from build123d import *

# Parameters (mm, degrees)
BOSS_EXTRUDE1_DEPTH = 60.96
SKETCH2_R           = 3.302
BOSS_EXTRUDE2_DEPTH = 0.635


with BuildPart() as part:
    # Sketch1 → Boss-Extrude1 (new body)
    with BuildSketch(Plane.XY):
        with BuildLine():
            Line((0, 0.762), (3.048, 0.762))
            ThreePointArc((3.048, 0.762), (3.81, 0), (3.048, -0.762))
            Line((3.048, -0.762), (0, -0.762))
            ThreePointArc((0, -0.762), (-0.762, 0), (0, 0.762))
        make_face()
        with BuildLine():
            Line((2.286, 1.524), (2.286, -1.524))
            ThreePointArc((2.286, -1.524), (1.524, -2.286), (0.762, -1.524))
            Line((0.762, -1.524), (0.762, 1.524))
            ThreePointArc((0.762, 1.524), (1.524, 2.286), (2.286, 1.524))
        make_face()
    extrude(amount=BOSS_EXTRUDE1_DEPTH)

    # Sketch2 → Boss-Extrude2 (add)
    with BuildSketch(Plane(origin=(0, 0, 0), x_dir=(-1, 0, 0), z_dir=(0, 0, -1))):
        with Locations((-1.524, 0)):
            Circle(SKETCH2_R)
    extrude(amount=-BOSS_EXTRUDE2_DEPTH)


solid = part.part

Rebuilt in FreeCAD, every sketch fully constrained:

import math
import FreeCAD as App
import Part
import Sketcher
from FreeCAD import Vector
Q = App.Units.Quantity

doc = App.newDocument("Part")
params = doc.addObject("Spreadsheet::Sheet", "Params")
for row, (alias, value) in enumerate([
    ("sketch1_radius", "0.03 in"),
    ("sketch1_width", "0.03 in"),
    ("pad1_length", "2.4 in"),
    ("sketch2_diameter", "0.26 in"),
    ("pad2_length", "0.025 in"),
], start=1):
    params.set(f"A{row}", alias)
    params.set(f"B{row}", "=" + value)
    params.setAlias(f"B{row}", alias)

body = doc.addObject("PartDesign::Body", "Body")

sketch1 = body.newObject("Sketcher::SketchObject", "Sketch")
sketch1.AttachmentSupport = (doc.getObject("XY_Plane"), [""])
sketch1.MapMode = "FlatFace"
sketch1.addGeometry([
    Part.ArcOfCircle(Part.Circle(Vector(0, 0, 0), Vector(0, 0, 1), 0.8), math.radians(90), math.radians(270)),
    Part.LineSegment(Vector(0, -0.8, 0), Vector(0.8, -0.8, 0)),
    Part.LineSegment(Vector(0.8, -0.8, 0), Vector(0.8, -1.5, 0)),
    Part.ArcOfCircle(Part.Circle(Vector(1.5, -1.5, 0), Vector(0, 0, 1), 0.8), math.radians(180), math.radians(360)),
    Part.LineSegment(Vector(2.3, -1.5, 0), Vector(2.3, -0.8, 0)),
    Part.LineSegment(Vector(2.3, -0.8, 0), Vector(3, -0.8, 0)),
    Part.ArcOfCircle(Part.Circle(Vector(3, 0, 0), Vector(0, 0, 1), 0.8), math.radians(-90), math.radians(90)),
    Part.LineSegment(Vector(3, 0.8, 0), Vector(2.3, 0.8, 0)),
    Part.LineSegment(Vector(2.3, 0.8, 0), Vector(2.3, 1.5, 0)),
    Part.ArcOfCircle(Part.Circle(Vector(1.5, 1.5, 0), Vector(0, 0, 1), 0.8), math.radians(0), math.radians(180)),
    Part.LineSegment(Vector(0.8, 1.5, 0), Vector(0.8, 0.8, 0)),
    Part.LineSegment(Vector(0.8, 0.8, 0), Vector(0, 0.8, 0)),
], False)
sketch1.addConstraint([
    Sketcher.Constraint("Tangent", 0, 2, 1, 1),
    Sketcher.Constraint("Coincident", 1, 2, 2, 1),
    Sketcher.Constraint("Tangent", 2, 2, 3, 1),
    Sketcher.Constraint("Tangent", 3, 2, 4, 1),
    Sketcher.Constraint("Coincident", 4, 2, 5, 1),
    Sketcher.Constraint("Tangent", 5, 2, 6, 1),
    Sketcher.Constraint("Tangent", 6, 2, 7, 1),
    Sketcher.Constraint("Coincident", 7, 2, 8, 1),
    Sketcher.Constraint("Tangent", 8, 2, 9, 1),
    Sketcher.Constraint("Tangent", 9, 2, 10, 1),
    Sketcher.Constraint("Coincident", 10, 2, 11, 1),
    Sketcher.Constraint("Tangent", 11, 2, 0, 1),
    Sketcher.Constraint("Horizontal", 1),
    Sketcher.Constraint("Vertical", 2),
    Sketcher.Constraint("Vertical", 4),
    Sketcher.Constraint("Horizontal", 5),
    Sketcher.Constraint("Horizontal", 7),
    Sketcher.Constraint("Vertical", 8),
    Sketcher.Constraint("Vertical", 10),
    Sketcher.Constraint("Horizontal", 11),
    Sketcher.Constraint("Coincident", 0, 3, -1, 1),
    Sketcher.Constraint("Equal", 0, 3),
    Sketcher.Constraint("Equal", 3, 6),
    Sketcher.Constraint("Equal", 6, 9),
    Sketcher.Constraint("Symmetric", 3, 3, 9, 3, -1),
    Sketcher.Constraint("PointOnObject", 6, 3, -1),
    Sketcher.Constraint("Equal", 1, 5),
    Sketcher.Constraint("Equal", 11, 2),
    Sketcher.Constraint("Radius", 0, Q("0.03 in")),
    Sketcher.Constraint("DistanceX", 1, 1, 1, 2, Q("0.03 in")),
])
sketch1.setExpression("Constraints[28]", "Params.sketch1_radius")
sketch1.setExpression("Constraints[29]", "Params.sketch1_width")
pad1 = body.newObject("PartDesign::Pad", "Pad")
pad1.Profile = sketch1
pad1.setExpression("Length", "Params.pad1_length")

sketch2 = body.newObject("Sketcher::SketchObject", "Sketch001")
sketch2.AttachmentSupport = (doc.getObject("XY_Plane"), [""])
sketch2.MapMode = "FlatFace"
sketch2.addGeometry(Part.Circle(Vector(1.5, 0, 0), Vector(0, 0, 1), 3.3), False)
sketch2.addConstraint([
    Sketcher.Constraint("PointOnObject", 0, 3, -1),
    Sketcher.Constraint("Diameter", 0, Q("0.26 in")),
    Sketcher.Constraint("DistanceX", -1, 1, 0, 3, Q("0.06 in")),
])
sketch2.setExpression("Constraints[1]", "Params.sketch2_diameter")
pad2 = body.newObject("PartDesign::Pad", "Pad001")
pad2.Profile = sketch2
pad2.setExpression("Length", "Params.pad2_length")

doc.recompute()
